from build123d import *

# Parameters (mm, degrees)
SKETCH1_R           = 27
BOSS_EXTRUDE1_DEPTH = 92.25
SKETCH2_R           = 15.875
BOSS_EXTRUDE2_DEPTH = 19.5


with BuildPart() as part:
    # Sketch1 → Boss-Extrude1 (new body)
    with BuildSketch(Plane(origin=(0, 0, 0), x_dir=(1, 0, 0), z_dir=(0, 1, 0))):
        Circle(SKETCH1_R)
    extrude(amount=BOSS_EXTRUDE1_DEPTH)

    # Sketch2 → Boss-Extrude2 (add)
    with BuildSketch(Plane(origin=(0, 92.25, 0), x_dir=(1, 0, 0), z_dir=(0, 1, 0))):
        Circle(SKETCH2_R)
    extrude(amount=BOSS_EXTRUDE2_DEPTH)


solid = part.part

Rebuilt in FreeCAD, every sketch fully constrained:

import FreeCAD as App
import Part
import Sketcher
from FreeCAD import Vector
Q = App.Units.Quantity

doc = App.newDocument("Part")
params = doc.addObject("Spreadsheet::Sheet", "Params")
for row, (alias, value) in enumerate([
    ("sketch1_diameter", "54 mm"),
    ("pad1_length", "92.25 mm"),
    ("sketch2_diameter", "31.75 mm"),
    ("pad2_length", "19.5 mm"),
], start=1):
    params.set(f"A{row}", alias)
    params.set(f"B{row}", "=" + value)
    params.setAlias(f"B{row}", alias)

body = doc.addObject("PartDesign::Body", "Body")

sketch1 = doc.addObject("Sketcher::SketchObject", "Sketch")
body.addObject(sketch1)
sketch1.AttachmentSupport = (doc.XZ_Plane, [""])
sketch1.MapMode = "FlatFace"
sketch1.addGeometry(Part.Circle(Vector(0, 0, 0), Vector(0, 0, 1), 27), False)
sketch1.addConstraint([
    Sketcher.Constraint("Coincident", 0, 3, -1, 1),
    Sketcher.Constraint("Diameter", 0, Q("54 mm")),
])
sketch1.setExpression("Constraints[1]", "Params.sketch1_diameter")
pad1 = doc.addObject("PartDesign::Pad", "Pad")
body.addObject(pad1)
pad1.Profile = sketch1
pad1.setExpression("Length", "Params.pad1_length")
pad1.Reversed = True

sketch2 = doc.addObject("Sketcher::SketchObject", "Sketch001")
body.addObject(sketch2)
sketch2.AttachmentSupport = (doc.XZ_Plane, [""])
sketch2.MapMode = "FlatFace"
sketch2.AttachmentOffset = App.Placement(Vector(0, 0, -92.25), App.Rotation())
sketch2.addGeometry(Part.Circle(Vector(0, 0, 0), Vector(0, 0, 1), 15.875), False)
sketch2.addConstraint([
    Sketcher.Constraint("Coincident", 0, 3, -1, 1),
    Sketcher.Constraint("Diameter", 0, Q("31.75 mm")),
])
sketch2.setExpression("Constraints[1]", "Params.sketch2_diameter")
pad2 = doc.addObject("PartDesign::Pad", "Pad001")
body.addObject(pad2)
pad2.Profile = sketch2
pad2.setExpression("Length", "Params.pad2_length")
pad2.Reversed = True

doc.recompute()
